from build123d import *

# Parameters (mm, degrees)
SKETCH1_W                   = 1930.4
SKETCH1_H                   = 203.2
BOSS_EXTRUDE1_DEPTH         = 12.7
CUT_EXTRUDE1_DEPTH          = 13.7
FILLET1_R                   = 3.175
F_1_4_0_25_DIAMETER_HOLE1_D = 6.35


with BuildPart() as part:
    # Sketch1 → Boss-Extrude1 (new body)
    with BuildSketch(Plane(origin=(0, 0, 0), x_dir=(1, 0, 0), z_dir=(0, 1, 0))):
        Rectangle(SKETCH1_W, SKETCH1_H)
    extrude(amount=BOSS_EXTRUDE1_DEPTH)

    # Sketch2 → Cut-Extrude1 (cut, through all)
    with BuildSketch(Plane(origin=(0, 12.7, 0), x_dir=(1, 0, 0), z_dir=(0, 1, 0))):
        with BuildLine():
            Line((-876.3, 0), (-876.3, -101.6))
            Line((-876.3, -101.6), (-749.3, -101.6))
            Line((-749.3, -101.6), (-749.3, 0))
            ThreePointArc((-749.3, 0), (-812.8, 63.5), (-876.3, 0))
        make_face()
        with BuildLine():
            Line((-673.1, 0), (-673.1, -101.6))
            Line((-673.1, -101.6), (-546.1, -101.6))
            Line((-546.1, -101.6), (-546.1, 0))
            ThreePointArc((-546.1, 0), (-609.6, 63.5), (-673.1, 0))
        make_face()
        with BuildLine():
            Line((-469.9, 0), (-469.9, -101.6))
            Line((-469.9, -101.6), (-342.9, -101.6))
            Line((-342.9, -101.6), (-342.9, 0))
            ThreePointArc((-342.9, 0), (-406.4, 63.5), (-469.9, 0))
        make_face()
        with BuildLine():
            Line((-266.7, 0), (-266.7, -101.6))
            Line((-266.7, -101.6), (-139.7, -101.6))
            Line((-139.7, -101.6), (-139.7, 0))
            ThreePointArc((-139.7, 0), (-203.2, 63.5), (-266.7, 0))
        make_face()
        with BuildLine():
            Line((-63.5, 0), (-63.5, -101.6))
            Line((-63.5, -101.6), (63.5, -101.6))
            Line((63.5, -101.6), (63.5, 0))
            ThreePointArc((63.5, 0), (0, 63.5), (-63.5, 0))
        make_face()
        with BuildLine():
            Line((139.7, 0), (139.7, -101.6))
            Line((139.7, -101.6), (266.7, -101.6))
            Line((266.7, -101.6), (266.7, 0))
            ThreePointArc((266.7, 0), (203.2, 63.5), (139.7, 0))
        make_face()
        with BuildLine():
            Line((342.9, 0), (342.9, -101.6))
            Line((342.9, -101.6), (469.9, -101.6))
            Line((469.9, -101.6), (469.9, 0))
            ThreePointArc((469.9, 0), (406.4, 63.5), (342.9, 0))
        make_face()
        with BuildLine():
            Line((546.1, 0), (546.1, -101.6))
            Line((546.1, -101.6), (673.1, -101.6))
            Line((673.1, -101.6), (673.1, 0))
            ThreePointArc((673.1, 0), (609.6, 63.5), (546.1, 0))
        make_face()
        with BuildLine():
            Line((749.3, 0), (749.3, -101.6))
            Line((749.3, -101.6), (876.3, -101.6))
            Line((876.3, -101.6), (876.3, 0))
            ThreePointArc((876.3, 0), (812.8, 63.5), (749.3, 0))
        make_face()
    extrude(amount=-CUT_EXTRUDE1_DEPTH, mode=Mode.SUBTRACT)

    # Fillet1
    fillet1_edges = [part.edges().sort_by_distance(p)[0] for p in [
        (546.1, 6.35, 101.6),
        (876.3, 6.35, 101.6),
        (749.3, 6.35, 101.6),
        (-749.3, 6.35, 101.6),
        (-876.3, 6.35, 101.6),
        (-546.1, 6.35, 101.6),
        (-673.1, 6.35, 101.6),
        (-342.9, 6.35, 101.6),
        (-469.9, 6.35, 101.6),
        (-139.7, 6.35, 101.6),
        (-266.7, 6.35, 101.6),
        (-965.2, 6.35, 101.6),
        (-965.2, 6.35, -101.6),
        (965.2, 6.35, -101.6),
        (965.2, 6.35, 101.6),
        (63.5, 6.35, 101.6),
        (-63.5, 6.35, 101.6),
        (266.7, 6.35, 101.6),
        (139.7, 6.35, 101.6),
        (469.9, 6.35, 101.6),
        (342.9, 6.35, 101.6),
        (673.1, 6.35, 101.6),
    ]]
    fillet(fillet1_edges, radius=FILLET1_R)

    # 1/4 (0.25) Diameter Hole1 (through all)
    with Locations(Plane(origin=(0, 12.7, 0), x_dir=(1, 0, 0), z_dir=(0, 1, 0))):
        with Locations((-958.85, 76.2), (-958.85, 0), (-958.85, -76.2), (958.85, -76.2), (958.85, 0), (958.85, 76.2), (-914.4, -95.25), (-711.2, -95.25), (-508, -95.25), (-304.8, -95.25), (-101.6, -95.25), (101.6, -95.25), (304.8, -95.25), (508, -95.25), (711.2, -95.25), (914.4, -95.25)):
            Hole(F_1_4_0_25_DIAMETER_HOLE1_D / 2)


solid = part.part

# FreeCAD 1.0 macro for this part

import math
import FreeCAD as App
import Part
import Sketcher
from FreeCAD import Vector
Q = App.Units.Quantity


def edges_at(feature, points):
    """Names of the edges that pass closest to the given points."""
    edges = feature.Shape.Edges
    near = lambda p: min(range(len(edges)), key=lambda i: edges[i].distToShape(Part.Vertex(*p))[0])
    return sorted({f"Edge{near(p) + 1}" for p in points})


def add_polygon(sketch, points):
    """Adds a closed chain of lines whose ends are joined by coincident constraints."""
    first, n = sketch.GeometryCount, len(points)
    for a, b in zip(points, points[1:] + points[:1]):
        sketch.addGeometry(Part.LineSegment(App.Vector(*a, 0), App.Vector(*b, 0)), False)
    for i in range(n):
        sketch.addConstraint(Sketcher.Constraint("Coincident", first + i, 2, first + (i + 1) % n, 1))

doc = App.newDocument("Part")
params = doc.addObject("Spreadsheet::Sheet", "Params")
for row, (alias, value) in enumerate([
    ("sketch1_width", "76 in"),
    ("sketch1_height", "8 in"),
    ("pad1_length", "0.5 in"),
    ("sketch2_radius", "2.5 in"),
    ("sketch2_height", "4 in"),
    ("fillet_radius", "0.125 in"),
    ("sketch3_diameter", "0.25 in"),
    ("hole_diameter", "0.25 in"),
], start=1):
    params.set(f"A{row}", alias)
    params.set(f"B{row}", "=" + value)
    params.setAlias(f"B{row}", alias)

body = doc.addObject("PartDesign::Body", "Body")

sketch1 = doc.addObject("Sketcher::SketchObject", "Sketch")
body.addObject(sketch1)
sketch1.AttachmentSupport = (doc.XZ_Plane, [""])
sketch1.MapMode = "FlatFace"
add_polygon(sketch1, [(-965, -102), (-965, 102), (965, 102), (965, -102)])
sketch1.addConstraint([
    Sketcher.Constraint("Vertical", 0),
    Sketcher.Constraint("Horizontal", 1),
    Sketcher.Constraint("Vertical", 2),
    Sketcher.Constraint("Horizontal", 3),
    Sketcher.Constraint("Symmetric", 0, 2, 2, 2, -1, 1),
    Sketcher.Constraint("DistanceX", 1, 1, 1, 2, Q("76 in")),
    Sketcher.Constraint("DistanceY", 0, 1, 0, 2, Q("8 in")),
])
sketch1.setExpression("Constraints[9]", "Params.sketch1_width")
sketch1.setExpression("Constraints[10]", "Params.sketch1_height")
pad1 = doc.addObject("PartDesign::Pad", "Pad")
body.addObject(pad1)
pad1.Profile = sketch1
pad1.setExpression("Length", "Params.pad1_length")
pad1.Reversed = True

sketch2 = doc.addObject("Sketcher::SketchObject", "Sketch001")
body.addObject(sketch2)
sketch2.AttachmentSupport = (doc.XZ_Plane, [""])
sketch2.MapMode = "FlatFace"
sketch2.AttachmentOffset = App.Placement(Vector(0, 0, -0.5 * 25.4), App.Rotation())
sketch2.addGeometry([
    Part.LineSegment(Vector(-876, 0, 0), Vector(-876, 102, 0)),
    Part.LineSegment(Vector(-876, 102, 0), Vector(-749, 102, 0)),
    Part.LineSegment(Vector(-749, 102, 0), Vector(-749, 0, 0)),
    Part.ArcOfCircle(Part.Circle(Vector(-813, 0, 0), Vector(0, 0, 1), 64), math.radians(180), math.radians(360)),
    Part.LineSegment(Vector(-673, 0, 0), Vector(-673, 102, 0)),
    Part.LineSegment(Vector(-673, 102, 0), Vector(-546, 102, 0)),
    Part.LineSegment(Vector(-546, 102, 0), Vector(-546, 0, 0)),
    Part.ArcOfCircle(Part.Circle(Vector(-610, 0, 0), Vector(0, 0, 1), 64), math.radians(180), math.radians(360)),
    Part.LineSegment(Vector(-470, 0, 0), Vector(-470, 102, 0)),
    Part.LineSegment(Vector(-470, 102, 0), Vector(-343, 102, 0)),
    Part.LineSegment(Vector(-343, 102, 0), Vector(-343, 0, 0)),
    Part.ArcOfCircle(Part.Circle(Vector(-406, 0, 0), Vector(0, 0, 1), 64), math.radians(180), math.radians(360)),
    Part.LineSegment(Vector(-267, 0, 0), Vector(-267, 102, 0)),
    Part.LineSegment(Vector(-267, 102, 0), Vector(-140, 102, 0)),
    Part.LineSegment(Vector(-140, 102, 0), Vector(-140, 0, 0)),
    Part.ArcOfCircle(Part.Circle(Vector(-203, 0, 0), Vector(0, 0, 1), 64), math.radians(180), math.radians(360)),
    Part.LineSegment(Vector(-64, 0, 0), Vector(-64, 102, 0)),
    Part.LineSegment(Vector(-64, 102, 0), Vector(64, 102, 0)),
    Part.LineSegment(Vector(64, 102, 0), Vector(64, 0, 0)),
    Part.ArcOfCircle(Part.Circle(Vector(0, 0, 0), Vector(0, 0, 1), 64), math.radians(180), math.radians(360)),
    Part.LineSegment(Vector(140, 0, 0), Vector(140, 102, 0)),
    Part.LineSegment(Vector(140, 102, 0), Vector(267, 102, 0)),
    Part.LineSegment(Vector(267, 102, 0), Vector(267, 0, 0)),
    Part.ArcOfCircle(Part.Circle(Vector(203, 0, 0), Vector(0, 0, 1), 64), math.radians(180), math.radians(360)),
    Part.LineSegment(Vector(343, 0, 0), Vector(343, 102, 0)),
    Part.LineSegment(Vector(343, 102, 0), Vector(470, 102, 0)),
    Part.LineSegment(Vector(470, 102, 0), Vector(470, 0, 0)),
    Part.ArcOfCircle(Part.Circle(Vector(406, 0, 0), Vector(0, 0, 1), 64), math.radians(180), math.radians(360)),
    Part.LineSegment(Vector(546, 0, 0), Vector(546, 102, 0)),
    Part.LineSegment(Vector(546, 102, 0), Vector(673, 102, 0)),
    Part.LineSegment(Vector(673, 102, 0), Vector(673, 0, 0)),
    Part.ArcOfCircle(Part.Circle(Vector(610, 0, 0), Vector(0, 0, 1), 64), math.radians(180), math.radians(360)),
    Part.LineSegment(Vector(749, 0, 0), Vector(749, 102, 0)),
    Part.LineSegment(Vector(749, 102, 0), Vector(876, 102, 0)),
    Part.LineSegment(Vector(876, 102, 0), Vector(876, 0, 0)),
    Part.ArcOfCircle(Part.Circle(Vector(813, 0, 0), Vector(0, 0, 1), 64), math.radians(180), math.radians(360)),
], False)
sketch2.addConstraint([
    Sketcher.Constraint("Coincident", 0, 2, 1, 1),
    Sketcher.Constraint("Coincident", 1, 2, 2, 1),
    Sketcher.Constraint("Tangent", 2, 2, 3, 2),
    Sketcher.Constraint("Tangent", 3, 1, 0, 1),
    Sketcher.Constraint("Coincident", 4, 2, 5, 1),
    Sketcher.Constraint("Coincident", 5, 2, 6, 1),
    Sketcher.Constraint("Tangent", 6, 2, 7, 2),
    Sketcher.Constraint("Tangent", 7, 1, 4, 1),
    Sketcher.Constraint("Coincident", 8, 2, 9, 1),
    Sketcher.Constraint("Coincident", 9, 2, 10, 1),
    Sketcher.Constraint("Tangent", 10, 2, 11, 2),
    Sketcher.Constraint("Tangent", 11, 1, 8, 1),
    Sketcher.Constraint("Coincident", 12, 2, 13, 1),
    Sketcher.Constraint("Coincident", 13, 2, 14, 1),
    Sketcher.Constraint("Tangent", 14, 2, 15, 2),
    Sketcher.Constraint("Tangent", 15, 1, 12, 1),
    Sketcher.Constraint("Coincident", 16, 2, 17, 1),
    Sketcher.Constraint("Coincident", 17, 2, 18, 1),
    Sketcher.Constraint("Tangent", 18, 2, 19, 2),
    Sketcher.Constraint("Tangent", 19, 1, 16, 1),
    Sketcher.Constraint("Coincident", 20, 2, 21, 1),
    Sketcher.Constraint("Coincident", 21, 2, 22, 1),
    Sketcher.Constraint("Tangent", 22, 2, 23, 2),
    Sketcher.Constraint("Tangent", 23, 1, 20, 1),
    Sketcher.Constraint("Coincident", 24, 2, 25, 1),
    Sketcher.Constraint("Coincident", 25, 2, 26, 1),
    Sketcher.Constraint("Tangent", 26, 2, 27, 2),
    Sketcher.Constraint("Tangent", 27, 1, 24, 1),
    Sketcher.Constraint("Coincident", 28, 2, 29, 1),
    Sketcher.Constraint("Coincident", 29, 2, 30, 1),
    Sketcher.Constraint("Tangent", 30, 2, 31, 2),
    Sketcher.Constraint("Tangent", 31, 1, 28, 1),
    Sketcher.Constraint("Coincident", 32, 2, 33, 1),
    Sketcher.Constraint("Coincident", 33, 2, 34, 1),
    Sketcher.Constraint("Tangent", 34, 2, 35, 2),
    Sketcher.Constraint("Tangent", 35, 1, 32, 1),
    Sketcher.Constraint("Vertical", 0),
    Sketcher.Constraint("Horizontal", 1),
    Sketcher.Constraint("Vertical", 2),
    Sketcher.Constraint("Vertical", 4),
    Sketcher.Constraint("Horizontal", 5),
    Sketcher.Constraint("Vertical", 6),
    Sketcher.Constraint("Vertical", 8),
    Sketcher.Constraint("Horizontal", 9),
    Sketcher.Constraint("Vertical", 10),
    Sketcher.Constraint("Vertical", 12),
    Sketcher.Constraint("Horizontal", 13),
    Sketcher.Constraint("Vertical", 14),
    Sketcher.Constraint("Vertical", 16),
    Sketcher.Constraint("Horizontal", 17),
    Sketcher.Constraint("Vertical", 18),
    Sketcher.Constraint("Vertical", 20),
    Sketcher.Constraint("Horizontal", 21),
    Sketcher.Constraint("Vertical", 22),
    Sketcher.Constraint("Vertical", 24),
    Sketcher.Constraint("Horizontal", 25),
    Sketcher.Constraint("Vertical", 26),
    Sketcher.Constraint("Vertical", 28),
    Sketcher.Constraint("Horizontal", 29),
    Sketcher.Constraint("Vertical", 30),
    Sketcher.Constraint("Vertical", 32),
    Sketcher.Constraint("Horizontal", 33),
    Sketcher.Constraint("Vertical", 34),
    Sketcher.Constraint("Coincident", 19, 3, -1, 1),
    Sketcher.Constraint("Equal", 3, 7),
    Sketcher.Constraint("Equal", 7, 11),
    Sketcher.Constraint("Equal", 11, 15),
    Sketcher.Constraint("Equal", 15, 19),
    Sketcher.Constraint("Equal", 19, 23),
    Sketcher.Constraint("Equal", 23, 27),
    Sketcher.Constraint("Equal", 27, 31),
    Sketcher.Constraint("Equal", 31, 35),
    Sketcher.Constraint("Symmetric", 15, 3, 23, 3, -1, 1),
    Sketcher.Constraint("Symmetric", 11, 3, 27, 3, -1, 1),
    Sketcher.Constraint("Symmetric", 7, 3, 31, 3, -1, 1),
    Sketcher.Constraint("Symmetric", 3, 3, 35, 3, -1, 1),
    Sketcher.Constraint("PointOnObject", 3, 3, -1),
    Sketcher.Constraint("PointOnObject", 7, 3, -1),
    Sketcher.Constraint("PointOnObject", 11, 3, -1),
    Sketcher.Constraint("PointOnObject", 15, 3, -1),
    Sketcher.Constraint("Horizontal", 1, 2, 4, 2),
    Sketcher.Constraint("Horizontal", 5, 2, 8, 2),
    Sketcher.Constraint("Horizontal", 9, 2, 12, 2),
    Sketcher.Constraint("Horizontal", 13, 2, 16, 2),
    Sketcher.Constraint("Horizontal", 17, 2, 20, 2),
    Sketcher.Constraint("Horizontal", 21, 2, 24, 2),
    Sketcher.Constraint("Horizontal", 25, 2, 28, 2),
    Sketcher.Constraint("Horizontal", 29, 2, 32, 2),
    Sketcher.Constraint("Radius", 3, Q("2.5 in")),
    Sketcher.Constraint("DistanceY", 0, 1, 0, 2, Q("4 in")),
    Sketcher.Constraint("DistanceX", 3, 3, -1, 1, Q("32 in")),
    Sketcher.Constraint("DistanceX", 7, 3, -1, 1, Q("24 in")),
    Sketcher.Constraint("DistanceX", 11, 3, -1, 1, Q("16 in")),
    Sketcher.Constraint("DistanceX", 15, 3, -1, 1, Q("8 in")),
])
sketch2.setExpression("Constraints[88]", "Params.sketch2_radius")
sketch2.setExpression("Constraints[89]", "Params.sketch2_height")
pocket1 = doc.addObject("PartDesign::Pocket", "Pocket")
body.addObject(pocket1)
pocket1.Profile = sketch2
pocket1.Type = "ThroughAll"
pocket1.Reversed = True
doc.recompute()

fillet = doc.addObject("PartDesign::Fillet", "Fillet")
body.addObject(fillet)
fillet.Base = (pocket1, edges_at(pocket1, [
    (546.1, 6.35, 101.6),
    (876.3, 6.35, 101.6),
    (749.3, 6.35, 101.6),
    (-749.3, 6.35, 101.6),
    (-876.3, 6.35, 101.6),
    (-546.1, 6.35, 101.6),
    (-673.1, 6.35, 101.6),
    (-342.9, 6.35, 101.6),
    (-469.9, 6.35, 101.6),
    (-139.7, 6.35, 101.6),
    (-266.7, 6.35, 101.6),
    (-965.2, 6.35, 101.6),
    (-965.2, 6.35, -101.6),
    (965.2, 6.35, -101.6),
    (965.2, 6.35, 101.6),
    (63.5, 6.35, 101.6),
    (-63.5, 6.35, 101.6),
    (266.7, 6.35, 101.6),
    (139.7, 6.35, 101.6),
    (469.9, 6.35, 101.6),
    (342.9, 6.35, 101.6),
    (673.1, 6.35, 101.6),
]))
fillet.setExpression("Radius", "Params.fillet_radius")

sketch3 = doc.addObject("Sketcher::SketchObject", "Sketch002")
body.addObject(sketch3)
sketch3.AttachmentSupport = (doc.XZ_Plane, [""])
sketch3.MapMode = "FlatFace"
sketch3.AttachmentOffset = App.Placement(Vector(0, 0, -0.5 * 25.4), App.Rotation())
sketch3.addGeometry([
    Part.Circle(Vector(-958.9, -76.2, 0), Vector(0, 0, 1), 3.2),
    Part.Circle(Vector(-958.9, 0, 0), Vector(0, 0, 1), 3.2),
    Part.Circle(Vector(-958.9, 76.2, 0), Vector(0, 0, 1), 3.2),
    Part.Circle(Vector(958.9, 76.2, 0), Vector(0, 0, 1), 3.2),
    Part.Circle(Vector(958.9, 0, 0), Vector(0, 0, 1), 3.2),
    Part.Circle(Vector(958.9, -76.2, 0), Vector(0, 0, 1), 3.2),
    Part.Circle(Vector(-914.4, 95.2, 0), Vector(0, 0, 1), 3.2),
    Part.Circle(Vector(-711.2, 95.2, 0), Vector(0, 0, 1), 3.2),
    Part.Circle(Vector(-508, 95.2, 0), Vector(0, 0, 1), 3.2),
    Part.Circle(Vector(-304.8, 95.2, 0), Vector(0, 0, 1), 3.2),
    Part.Circle(Vector(-101.6, 95.2, 0), Vector(0, 0, 1), 3.2),
    Part.Circle(Vector(101.6, 95.2, 0), Vector(0, 0, 1), 3.2),
    Part.Circle(Vector(304.8, 95.2, 0), Vector(0, 0, 1), 3.2),
    Part.Circle(Vector(508, 95.2, 0), Vector(0, 0, 1), 3.2),
    Part.Circle(Vector(711.2, 95.2, 0), Vector(0, 0, 1), 3.2),
    Part.Circle(Vector(914.4, 95.2, 0), Vector(0, 0, 1), 3.2),
], False)
sketch3.addConstraint([
    Sketcher.Constraint("Equal", 0, 1),
    Sketcher.Constraint("Equal", 1, 2),
    Sketcher.Constraint("Equal", 2, 3),
    Sketcher.Constraint("Equal", 3, 4),
    Sketcher.Constraint("Equal", 4, 5),
    Sketcher.Constraint("Equal", 5, 6),
    Sketcher.Constraint("Equal", 6, 7),
    Sketcher.Constraint("Equal", 7, 8),
    Sketcher.Constraint("Equal", 8, 9),
    Sketcher.Constraint("Equal", 9, 10),
    Sketcher.Constraint("Equal", 10, 11),
    Sketcher.Constraint("Equal", 11, 12),
    Sketcher.Constraint("Equal", 12, 13),
    Sketcher.Constraint("Equal", 13, 14),
    Sketcher.Constraint("Equal", 14, 15),
    Sketcher.Constraint("Symmetric", 0, 3, 3, 3, -1, 1),
    Sketcher.Constraint("Symmetric", 1, 3, 4, 3, -1, 1),
    Sketcher.Constraint("Symmetric", 2, 3, 5, 3, -1, 1),
    Sketcher.Constraint("Symmetric", 2, 3, 3, 3, -2),
    Sketcher.Constraint("Symmetric", 10, 3, 11, 3, -2),
    Sketcher.Constraint("Symmetric", 9, 3, 12, 3, -2),
    Sketcher.Constraint("Symmetric", 8, 3, 13, 3, -2),
    Sketcher.Constraint("Symmetric", 7, 3, 14, 3, -2),
    Sketcher.Constraint("Symmetric", 6, 3, 15, 3, -2),
    Sketcher.Constraint("PointOnObject", 1, 3, -1),
    Sketcher.Constraint("Horizontal", 6, 3, 7, 3),
    Sketcher.Constraint("Horizontal", 7, 3, 8, 3),
    Sketcher.Constraint("Horizontal", 8, 3, 9, 3),
    Sketcher.Constraint("Horizontal", 9, 3, 10, 3),
    Sketcher.Constraint("Vertical", 0, 3, 1, 3),
    Sketcher.Constraint("Diameter", 0, Q("0.25 in")),
    Sketcher.Constraint("DistanceY", 0, 3, -1, 1, Q("3 in")),
    Sketcher.Constraint("DistanceX", 6, 3, -1, 1, Q("36 in")),
    Sketcher.Constraint("DistanceX", 7, 3, -1, 1, Q("28 in")),
    Sketcher.Constraint("DistanceX", 8, 3, -1, 1, Q("20 in")),
    Sketcher.Constraint("DistanceX", 9, 3, -1, 1, Q("12 in")),
    Sketcher.Constraint("DistanceX", 10, 3, -1, 1, Q("4 in")),
    Sketcher.Constraint("DistanceX", 2, 3, 3, 3, Q("75.5 in")),
    Sketcher.Constraint("DistanceY", -1, 1, 6, 3, Q("3.75 in")),
])
sketch3.setExpression("Constraints[30]", "Params.sketch3_diameter")
doc.recompute()
hole = doc.addObject("PartDesign::Hole", "Hole")
body.addObject(hole)
hole.Profile = sketch3
hole.ThreadType = "None"
hole.setExpression("Diameter", "Params.hole_diameter")
hole.DepthType = "ThroughAll"
hole.Reversed = True

doc.recompute()
